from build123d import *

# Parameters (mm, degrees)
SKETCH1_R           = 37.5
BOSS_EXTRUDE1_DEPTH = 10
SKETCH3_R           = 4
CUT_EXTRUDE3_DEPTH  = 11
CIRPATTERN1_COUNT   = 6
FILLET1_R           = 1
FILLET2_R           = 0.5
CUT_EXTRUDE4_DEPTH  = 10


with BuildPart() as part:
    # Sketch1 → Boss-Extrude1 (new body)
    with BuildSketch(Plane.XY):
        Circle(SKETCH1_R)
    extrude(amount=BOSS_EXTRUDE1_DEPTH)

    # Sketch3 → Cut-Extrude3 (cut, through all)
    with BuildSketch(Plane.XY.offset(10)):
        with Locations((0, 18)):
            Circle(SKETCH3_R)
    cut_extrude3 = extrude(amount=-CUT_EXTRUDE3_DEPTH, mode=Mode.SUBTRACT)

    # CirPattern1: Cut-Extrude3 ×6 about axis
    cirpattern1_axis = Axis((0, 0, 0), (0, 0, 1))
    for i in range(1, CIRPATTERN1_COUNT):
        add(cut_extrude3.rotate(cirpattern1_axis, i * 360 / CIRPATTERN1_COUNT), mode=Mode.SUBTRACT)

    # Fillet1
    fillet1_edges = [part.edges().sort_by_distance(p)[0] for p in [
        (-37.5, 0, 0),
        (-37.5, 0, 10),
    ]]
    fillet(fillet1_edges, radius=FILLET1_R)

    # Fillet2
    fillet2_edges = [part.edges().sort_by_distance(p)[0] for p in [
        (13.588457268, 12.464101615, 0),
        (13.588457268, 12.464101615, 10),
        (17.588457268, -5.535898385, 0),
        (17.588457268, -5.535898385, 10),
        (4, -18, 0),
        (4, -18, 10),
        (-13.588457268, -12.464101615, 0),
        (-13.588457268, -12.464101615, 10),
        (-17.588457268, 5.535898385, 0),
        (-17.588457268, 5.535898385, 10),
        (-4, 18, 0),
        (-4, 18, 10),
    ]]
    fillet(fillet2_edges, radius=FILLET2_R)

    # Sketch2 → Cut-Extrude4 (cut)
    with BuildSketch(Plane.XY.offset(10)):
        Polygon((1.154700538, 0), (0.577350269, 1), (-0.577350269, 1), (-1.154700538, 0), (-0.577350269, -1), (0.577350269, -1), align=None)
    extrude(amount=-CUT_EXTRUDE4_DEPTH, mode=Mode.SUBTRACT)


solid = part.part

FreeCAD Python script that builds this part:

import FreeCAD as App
import Part
import Sketcher
Q = App.Units.Quantity


def edges_at(feature, points):
    """Names of the edges that pass closest to the given points."""
    edges = feature.Shape.Edges
    near = lambda p: min(range(len(edges)), key=lambda i: edges[i].distToShape(Part.Vertex(*p))[0])
    return sorted({f"Edge{near(p) + 1}" for p in points})


def add_polygon(sketch, points):
    """Adds a closed chain of lines whose ends are joined by coincident constraints."""
    first, n = sketch.GeometryCount, len(points)
    for a, b in zip(points, points[1:] + points[:1]):
        sketch.addGeometry(Part.LineSegment(App.Vector(*a, 0), App.Vector(*b, 0)), False)
    for i in range(n):
        sketch.addConstraint(Sketcher.Constraint("Coincident", first + i, 2, first + (i + 1) % n, 1))

doc = App.newDocument("Part")
body = doc.addObject("PartDesign::Body", "Body")

sketch1 = body.newObject("Sketcher::SketchObject", "Sketch")
sketch1.AttachmentSupport = (doc.getObject("XY_Plane"), [""])
sketch1.MapMode = "FlatFace"
sketch1.addGeometry(Part.Circle(App.Vector(0, 0, 0), App.Vector(0, 0, 1), 38), False)
sketch1.addConstraint(Sketcher.Constraint("Coincident", 0, 3, -1, 1))
sketch1.addConstraint(Sketcher.Constraint("Diameter", 0, 75.0))
pad1 = body.newObject("PartDesign::Pad", "Pad")
pad1.Profile = sketch1
pad1.Length = 10

sketch2 = body.newObject("Sketcher::SketchObject", "Sketch001")
sketch2.AttachmentSupport = (doc.getObject("XY_Plane"), [""])
sketch2.MapMode = "FlatFace"
sketch2.AttachmentOffset = App.Placement(App.Vector(0, 0, 10), App.Rotation())
sketch2.addGeometry(Part.Circle(App.Vector(0, 18, 0), App.Vector(0, 0, 1), 4), False)
sketch2.addConstraint(Sketcher.Constraint("PointOnObject", 0, 3, -2))
sketch2.addConstraint(Sketcher.Constraint("Diameter", 0, 8.0))
sketch2.addConstraint(Sketcher.Constraint("DistanceY", -1, 1, 0, 3, 18.0))
pocket1 = body.newObject("PartDesign::Pocket", "Pocket")
pocket1.Profile = sketch2
pocket1.Type = "ThroughAll"
doc.recompute()

polarpattern = body.newObject("PartDesign::PolarPattern", "PolarPattern")
polarpattern.Originals = [pocket1]
polarpattern.Axis = (doc.getObject("Z_Axis"), [""])
polarpattern.Angle = 360
polarpattern.Occurrences = 6
body.Tip = polarpattern
doc.recompute()

fillet = body.newObject("PartDesign::Fillet", "Fillet")
fillet.Base = (polarpattern, edges_at(polarpattern, [(-37.5, 0, 0), (-37.5, 0, 10)]))
fillet.Radius = 1
doc.recompute()

fillet2 = body.newObject("PartDesign::Fillet", "Fillet001")
fillet2.Base = (fillet, edges_at(fillet, [
    (13.588, 12.464, 0),
    (13.588, 12.464, 10),
    (17.588, -5.536, 0),
    (17.588, -5.536, 10),
    (4, -18, 0),
    (4, -18, 10),
    (-13.588, -12.464, 0),
    (-13.588, -12.464, 10),
    (-17.588, 5.536, 0),
    (-17.588, 5.536, 10),
    (-4, 18, 0),
    (-4, 18, 10),
]))
fillet2.Radius = 0.5

sketch3 = body.newObject("Sketcher::SketchObject", "Sketch002")
sketch3.AttachmentSupport = (doc.getObject("XY_Plane"), [""])
sketch3.MapMode = "FlatFace"
sketch3.AttachmentOffset = App.Placement(App.Vector(0, 0, 10), App.Rotation())
add_polygon(sketch3, [(1.2, 0), (0.6, 1), (-0.6, 1), (-1.2, 0), (-0.6, -1), (0.6, -1)])
sketch3.addConstraint(Sketcher.Constraint("Horizontal", 1))
sketch3.addConstraint(Sketcher.Constraint("Horizontal", 4))
sketch3.addConstraint(Sketcher.Constraint("Symmetric", 0, 2, 3, 2, -1, 1))
sketch3.addConstraint(Sketcher.Constraint("Symmetric", 2, 2, 5, 2, -1, 1))
sketch3.addConstraint(Sketcher.Constraint("PointOnObject", 2, 2, -1))
sketch3.addConstraint(Sketcher.Constraint("Parallel", 2, 5))
sketch3.addConstraint(Sketcher.Constraint("Vertical", 1, 2, 3, 2))
sketch3.addConstraint(Sketcher.Constraint("Angle", 0, Q("120 deg")))
sketch3.addConstraint(Sketcher.Constraint("DistanceY", -1, 1, 0, 2, 1.0))
sketch3.addConstraint(Sketcher.Constraint("DistanceX", 1, 2, 1, 1, 1.154701))
pocket2 = body.newObject("PartDesign::Pocket", "Pocket001")
pocket2.Profile = sketch3
pocket2.Length = 10

doc.recompute()
